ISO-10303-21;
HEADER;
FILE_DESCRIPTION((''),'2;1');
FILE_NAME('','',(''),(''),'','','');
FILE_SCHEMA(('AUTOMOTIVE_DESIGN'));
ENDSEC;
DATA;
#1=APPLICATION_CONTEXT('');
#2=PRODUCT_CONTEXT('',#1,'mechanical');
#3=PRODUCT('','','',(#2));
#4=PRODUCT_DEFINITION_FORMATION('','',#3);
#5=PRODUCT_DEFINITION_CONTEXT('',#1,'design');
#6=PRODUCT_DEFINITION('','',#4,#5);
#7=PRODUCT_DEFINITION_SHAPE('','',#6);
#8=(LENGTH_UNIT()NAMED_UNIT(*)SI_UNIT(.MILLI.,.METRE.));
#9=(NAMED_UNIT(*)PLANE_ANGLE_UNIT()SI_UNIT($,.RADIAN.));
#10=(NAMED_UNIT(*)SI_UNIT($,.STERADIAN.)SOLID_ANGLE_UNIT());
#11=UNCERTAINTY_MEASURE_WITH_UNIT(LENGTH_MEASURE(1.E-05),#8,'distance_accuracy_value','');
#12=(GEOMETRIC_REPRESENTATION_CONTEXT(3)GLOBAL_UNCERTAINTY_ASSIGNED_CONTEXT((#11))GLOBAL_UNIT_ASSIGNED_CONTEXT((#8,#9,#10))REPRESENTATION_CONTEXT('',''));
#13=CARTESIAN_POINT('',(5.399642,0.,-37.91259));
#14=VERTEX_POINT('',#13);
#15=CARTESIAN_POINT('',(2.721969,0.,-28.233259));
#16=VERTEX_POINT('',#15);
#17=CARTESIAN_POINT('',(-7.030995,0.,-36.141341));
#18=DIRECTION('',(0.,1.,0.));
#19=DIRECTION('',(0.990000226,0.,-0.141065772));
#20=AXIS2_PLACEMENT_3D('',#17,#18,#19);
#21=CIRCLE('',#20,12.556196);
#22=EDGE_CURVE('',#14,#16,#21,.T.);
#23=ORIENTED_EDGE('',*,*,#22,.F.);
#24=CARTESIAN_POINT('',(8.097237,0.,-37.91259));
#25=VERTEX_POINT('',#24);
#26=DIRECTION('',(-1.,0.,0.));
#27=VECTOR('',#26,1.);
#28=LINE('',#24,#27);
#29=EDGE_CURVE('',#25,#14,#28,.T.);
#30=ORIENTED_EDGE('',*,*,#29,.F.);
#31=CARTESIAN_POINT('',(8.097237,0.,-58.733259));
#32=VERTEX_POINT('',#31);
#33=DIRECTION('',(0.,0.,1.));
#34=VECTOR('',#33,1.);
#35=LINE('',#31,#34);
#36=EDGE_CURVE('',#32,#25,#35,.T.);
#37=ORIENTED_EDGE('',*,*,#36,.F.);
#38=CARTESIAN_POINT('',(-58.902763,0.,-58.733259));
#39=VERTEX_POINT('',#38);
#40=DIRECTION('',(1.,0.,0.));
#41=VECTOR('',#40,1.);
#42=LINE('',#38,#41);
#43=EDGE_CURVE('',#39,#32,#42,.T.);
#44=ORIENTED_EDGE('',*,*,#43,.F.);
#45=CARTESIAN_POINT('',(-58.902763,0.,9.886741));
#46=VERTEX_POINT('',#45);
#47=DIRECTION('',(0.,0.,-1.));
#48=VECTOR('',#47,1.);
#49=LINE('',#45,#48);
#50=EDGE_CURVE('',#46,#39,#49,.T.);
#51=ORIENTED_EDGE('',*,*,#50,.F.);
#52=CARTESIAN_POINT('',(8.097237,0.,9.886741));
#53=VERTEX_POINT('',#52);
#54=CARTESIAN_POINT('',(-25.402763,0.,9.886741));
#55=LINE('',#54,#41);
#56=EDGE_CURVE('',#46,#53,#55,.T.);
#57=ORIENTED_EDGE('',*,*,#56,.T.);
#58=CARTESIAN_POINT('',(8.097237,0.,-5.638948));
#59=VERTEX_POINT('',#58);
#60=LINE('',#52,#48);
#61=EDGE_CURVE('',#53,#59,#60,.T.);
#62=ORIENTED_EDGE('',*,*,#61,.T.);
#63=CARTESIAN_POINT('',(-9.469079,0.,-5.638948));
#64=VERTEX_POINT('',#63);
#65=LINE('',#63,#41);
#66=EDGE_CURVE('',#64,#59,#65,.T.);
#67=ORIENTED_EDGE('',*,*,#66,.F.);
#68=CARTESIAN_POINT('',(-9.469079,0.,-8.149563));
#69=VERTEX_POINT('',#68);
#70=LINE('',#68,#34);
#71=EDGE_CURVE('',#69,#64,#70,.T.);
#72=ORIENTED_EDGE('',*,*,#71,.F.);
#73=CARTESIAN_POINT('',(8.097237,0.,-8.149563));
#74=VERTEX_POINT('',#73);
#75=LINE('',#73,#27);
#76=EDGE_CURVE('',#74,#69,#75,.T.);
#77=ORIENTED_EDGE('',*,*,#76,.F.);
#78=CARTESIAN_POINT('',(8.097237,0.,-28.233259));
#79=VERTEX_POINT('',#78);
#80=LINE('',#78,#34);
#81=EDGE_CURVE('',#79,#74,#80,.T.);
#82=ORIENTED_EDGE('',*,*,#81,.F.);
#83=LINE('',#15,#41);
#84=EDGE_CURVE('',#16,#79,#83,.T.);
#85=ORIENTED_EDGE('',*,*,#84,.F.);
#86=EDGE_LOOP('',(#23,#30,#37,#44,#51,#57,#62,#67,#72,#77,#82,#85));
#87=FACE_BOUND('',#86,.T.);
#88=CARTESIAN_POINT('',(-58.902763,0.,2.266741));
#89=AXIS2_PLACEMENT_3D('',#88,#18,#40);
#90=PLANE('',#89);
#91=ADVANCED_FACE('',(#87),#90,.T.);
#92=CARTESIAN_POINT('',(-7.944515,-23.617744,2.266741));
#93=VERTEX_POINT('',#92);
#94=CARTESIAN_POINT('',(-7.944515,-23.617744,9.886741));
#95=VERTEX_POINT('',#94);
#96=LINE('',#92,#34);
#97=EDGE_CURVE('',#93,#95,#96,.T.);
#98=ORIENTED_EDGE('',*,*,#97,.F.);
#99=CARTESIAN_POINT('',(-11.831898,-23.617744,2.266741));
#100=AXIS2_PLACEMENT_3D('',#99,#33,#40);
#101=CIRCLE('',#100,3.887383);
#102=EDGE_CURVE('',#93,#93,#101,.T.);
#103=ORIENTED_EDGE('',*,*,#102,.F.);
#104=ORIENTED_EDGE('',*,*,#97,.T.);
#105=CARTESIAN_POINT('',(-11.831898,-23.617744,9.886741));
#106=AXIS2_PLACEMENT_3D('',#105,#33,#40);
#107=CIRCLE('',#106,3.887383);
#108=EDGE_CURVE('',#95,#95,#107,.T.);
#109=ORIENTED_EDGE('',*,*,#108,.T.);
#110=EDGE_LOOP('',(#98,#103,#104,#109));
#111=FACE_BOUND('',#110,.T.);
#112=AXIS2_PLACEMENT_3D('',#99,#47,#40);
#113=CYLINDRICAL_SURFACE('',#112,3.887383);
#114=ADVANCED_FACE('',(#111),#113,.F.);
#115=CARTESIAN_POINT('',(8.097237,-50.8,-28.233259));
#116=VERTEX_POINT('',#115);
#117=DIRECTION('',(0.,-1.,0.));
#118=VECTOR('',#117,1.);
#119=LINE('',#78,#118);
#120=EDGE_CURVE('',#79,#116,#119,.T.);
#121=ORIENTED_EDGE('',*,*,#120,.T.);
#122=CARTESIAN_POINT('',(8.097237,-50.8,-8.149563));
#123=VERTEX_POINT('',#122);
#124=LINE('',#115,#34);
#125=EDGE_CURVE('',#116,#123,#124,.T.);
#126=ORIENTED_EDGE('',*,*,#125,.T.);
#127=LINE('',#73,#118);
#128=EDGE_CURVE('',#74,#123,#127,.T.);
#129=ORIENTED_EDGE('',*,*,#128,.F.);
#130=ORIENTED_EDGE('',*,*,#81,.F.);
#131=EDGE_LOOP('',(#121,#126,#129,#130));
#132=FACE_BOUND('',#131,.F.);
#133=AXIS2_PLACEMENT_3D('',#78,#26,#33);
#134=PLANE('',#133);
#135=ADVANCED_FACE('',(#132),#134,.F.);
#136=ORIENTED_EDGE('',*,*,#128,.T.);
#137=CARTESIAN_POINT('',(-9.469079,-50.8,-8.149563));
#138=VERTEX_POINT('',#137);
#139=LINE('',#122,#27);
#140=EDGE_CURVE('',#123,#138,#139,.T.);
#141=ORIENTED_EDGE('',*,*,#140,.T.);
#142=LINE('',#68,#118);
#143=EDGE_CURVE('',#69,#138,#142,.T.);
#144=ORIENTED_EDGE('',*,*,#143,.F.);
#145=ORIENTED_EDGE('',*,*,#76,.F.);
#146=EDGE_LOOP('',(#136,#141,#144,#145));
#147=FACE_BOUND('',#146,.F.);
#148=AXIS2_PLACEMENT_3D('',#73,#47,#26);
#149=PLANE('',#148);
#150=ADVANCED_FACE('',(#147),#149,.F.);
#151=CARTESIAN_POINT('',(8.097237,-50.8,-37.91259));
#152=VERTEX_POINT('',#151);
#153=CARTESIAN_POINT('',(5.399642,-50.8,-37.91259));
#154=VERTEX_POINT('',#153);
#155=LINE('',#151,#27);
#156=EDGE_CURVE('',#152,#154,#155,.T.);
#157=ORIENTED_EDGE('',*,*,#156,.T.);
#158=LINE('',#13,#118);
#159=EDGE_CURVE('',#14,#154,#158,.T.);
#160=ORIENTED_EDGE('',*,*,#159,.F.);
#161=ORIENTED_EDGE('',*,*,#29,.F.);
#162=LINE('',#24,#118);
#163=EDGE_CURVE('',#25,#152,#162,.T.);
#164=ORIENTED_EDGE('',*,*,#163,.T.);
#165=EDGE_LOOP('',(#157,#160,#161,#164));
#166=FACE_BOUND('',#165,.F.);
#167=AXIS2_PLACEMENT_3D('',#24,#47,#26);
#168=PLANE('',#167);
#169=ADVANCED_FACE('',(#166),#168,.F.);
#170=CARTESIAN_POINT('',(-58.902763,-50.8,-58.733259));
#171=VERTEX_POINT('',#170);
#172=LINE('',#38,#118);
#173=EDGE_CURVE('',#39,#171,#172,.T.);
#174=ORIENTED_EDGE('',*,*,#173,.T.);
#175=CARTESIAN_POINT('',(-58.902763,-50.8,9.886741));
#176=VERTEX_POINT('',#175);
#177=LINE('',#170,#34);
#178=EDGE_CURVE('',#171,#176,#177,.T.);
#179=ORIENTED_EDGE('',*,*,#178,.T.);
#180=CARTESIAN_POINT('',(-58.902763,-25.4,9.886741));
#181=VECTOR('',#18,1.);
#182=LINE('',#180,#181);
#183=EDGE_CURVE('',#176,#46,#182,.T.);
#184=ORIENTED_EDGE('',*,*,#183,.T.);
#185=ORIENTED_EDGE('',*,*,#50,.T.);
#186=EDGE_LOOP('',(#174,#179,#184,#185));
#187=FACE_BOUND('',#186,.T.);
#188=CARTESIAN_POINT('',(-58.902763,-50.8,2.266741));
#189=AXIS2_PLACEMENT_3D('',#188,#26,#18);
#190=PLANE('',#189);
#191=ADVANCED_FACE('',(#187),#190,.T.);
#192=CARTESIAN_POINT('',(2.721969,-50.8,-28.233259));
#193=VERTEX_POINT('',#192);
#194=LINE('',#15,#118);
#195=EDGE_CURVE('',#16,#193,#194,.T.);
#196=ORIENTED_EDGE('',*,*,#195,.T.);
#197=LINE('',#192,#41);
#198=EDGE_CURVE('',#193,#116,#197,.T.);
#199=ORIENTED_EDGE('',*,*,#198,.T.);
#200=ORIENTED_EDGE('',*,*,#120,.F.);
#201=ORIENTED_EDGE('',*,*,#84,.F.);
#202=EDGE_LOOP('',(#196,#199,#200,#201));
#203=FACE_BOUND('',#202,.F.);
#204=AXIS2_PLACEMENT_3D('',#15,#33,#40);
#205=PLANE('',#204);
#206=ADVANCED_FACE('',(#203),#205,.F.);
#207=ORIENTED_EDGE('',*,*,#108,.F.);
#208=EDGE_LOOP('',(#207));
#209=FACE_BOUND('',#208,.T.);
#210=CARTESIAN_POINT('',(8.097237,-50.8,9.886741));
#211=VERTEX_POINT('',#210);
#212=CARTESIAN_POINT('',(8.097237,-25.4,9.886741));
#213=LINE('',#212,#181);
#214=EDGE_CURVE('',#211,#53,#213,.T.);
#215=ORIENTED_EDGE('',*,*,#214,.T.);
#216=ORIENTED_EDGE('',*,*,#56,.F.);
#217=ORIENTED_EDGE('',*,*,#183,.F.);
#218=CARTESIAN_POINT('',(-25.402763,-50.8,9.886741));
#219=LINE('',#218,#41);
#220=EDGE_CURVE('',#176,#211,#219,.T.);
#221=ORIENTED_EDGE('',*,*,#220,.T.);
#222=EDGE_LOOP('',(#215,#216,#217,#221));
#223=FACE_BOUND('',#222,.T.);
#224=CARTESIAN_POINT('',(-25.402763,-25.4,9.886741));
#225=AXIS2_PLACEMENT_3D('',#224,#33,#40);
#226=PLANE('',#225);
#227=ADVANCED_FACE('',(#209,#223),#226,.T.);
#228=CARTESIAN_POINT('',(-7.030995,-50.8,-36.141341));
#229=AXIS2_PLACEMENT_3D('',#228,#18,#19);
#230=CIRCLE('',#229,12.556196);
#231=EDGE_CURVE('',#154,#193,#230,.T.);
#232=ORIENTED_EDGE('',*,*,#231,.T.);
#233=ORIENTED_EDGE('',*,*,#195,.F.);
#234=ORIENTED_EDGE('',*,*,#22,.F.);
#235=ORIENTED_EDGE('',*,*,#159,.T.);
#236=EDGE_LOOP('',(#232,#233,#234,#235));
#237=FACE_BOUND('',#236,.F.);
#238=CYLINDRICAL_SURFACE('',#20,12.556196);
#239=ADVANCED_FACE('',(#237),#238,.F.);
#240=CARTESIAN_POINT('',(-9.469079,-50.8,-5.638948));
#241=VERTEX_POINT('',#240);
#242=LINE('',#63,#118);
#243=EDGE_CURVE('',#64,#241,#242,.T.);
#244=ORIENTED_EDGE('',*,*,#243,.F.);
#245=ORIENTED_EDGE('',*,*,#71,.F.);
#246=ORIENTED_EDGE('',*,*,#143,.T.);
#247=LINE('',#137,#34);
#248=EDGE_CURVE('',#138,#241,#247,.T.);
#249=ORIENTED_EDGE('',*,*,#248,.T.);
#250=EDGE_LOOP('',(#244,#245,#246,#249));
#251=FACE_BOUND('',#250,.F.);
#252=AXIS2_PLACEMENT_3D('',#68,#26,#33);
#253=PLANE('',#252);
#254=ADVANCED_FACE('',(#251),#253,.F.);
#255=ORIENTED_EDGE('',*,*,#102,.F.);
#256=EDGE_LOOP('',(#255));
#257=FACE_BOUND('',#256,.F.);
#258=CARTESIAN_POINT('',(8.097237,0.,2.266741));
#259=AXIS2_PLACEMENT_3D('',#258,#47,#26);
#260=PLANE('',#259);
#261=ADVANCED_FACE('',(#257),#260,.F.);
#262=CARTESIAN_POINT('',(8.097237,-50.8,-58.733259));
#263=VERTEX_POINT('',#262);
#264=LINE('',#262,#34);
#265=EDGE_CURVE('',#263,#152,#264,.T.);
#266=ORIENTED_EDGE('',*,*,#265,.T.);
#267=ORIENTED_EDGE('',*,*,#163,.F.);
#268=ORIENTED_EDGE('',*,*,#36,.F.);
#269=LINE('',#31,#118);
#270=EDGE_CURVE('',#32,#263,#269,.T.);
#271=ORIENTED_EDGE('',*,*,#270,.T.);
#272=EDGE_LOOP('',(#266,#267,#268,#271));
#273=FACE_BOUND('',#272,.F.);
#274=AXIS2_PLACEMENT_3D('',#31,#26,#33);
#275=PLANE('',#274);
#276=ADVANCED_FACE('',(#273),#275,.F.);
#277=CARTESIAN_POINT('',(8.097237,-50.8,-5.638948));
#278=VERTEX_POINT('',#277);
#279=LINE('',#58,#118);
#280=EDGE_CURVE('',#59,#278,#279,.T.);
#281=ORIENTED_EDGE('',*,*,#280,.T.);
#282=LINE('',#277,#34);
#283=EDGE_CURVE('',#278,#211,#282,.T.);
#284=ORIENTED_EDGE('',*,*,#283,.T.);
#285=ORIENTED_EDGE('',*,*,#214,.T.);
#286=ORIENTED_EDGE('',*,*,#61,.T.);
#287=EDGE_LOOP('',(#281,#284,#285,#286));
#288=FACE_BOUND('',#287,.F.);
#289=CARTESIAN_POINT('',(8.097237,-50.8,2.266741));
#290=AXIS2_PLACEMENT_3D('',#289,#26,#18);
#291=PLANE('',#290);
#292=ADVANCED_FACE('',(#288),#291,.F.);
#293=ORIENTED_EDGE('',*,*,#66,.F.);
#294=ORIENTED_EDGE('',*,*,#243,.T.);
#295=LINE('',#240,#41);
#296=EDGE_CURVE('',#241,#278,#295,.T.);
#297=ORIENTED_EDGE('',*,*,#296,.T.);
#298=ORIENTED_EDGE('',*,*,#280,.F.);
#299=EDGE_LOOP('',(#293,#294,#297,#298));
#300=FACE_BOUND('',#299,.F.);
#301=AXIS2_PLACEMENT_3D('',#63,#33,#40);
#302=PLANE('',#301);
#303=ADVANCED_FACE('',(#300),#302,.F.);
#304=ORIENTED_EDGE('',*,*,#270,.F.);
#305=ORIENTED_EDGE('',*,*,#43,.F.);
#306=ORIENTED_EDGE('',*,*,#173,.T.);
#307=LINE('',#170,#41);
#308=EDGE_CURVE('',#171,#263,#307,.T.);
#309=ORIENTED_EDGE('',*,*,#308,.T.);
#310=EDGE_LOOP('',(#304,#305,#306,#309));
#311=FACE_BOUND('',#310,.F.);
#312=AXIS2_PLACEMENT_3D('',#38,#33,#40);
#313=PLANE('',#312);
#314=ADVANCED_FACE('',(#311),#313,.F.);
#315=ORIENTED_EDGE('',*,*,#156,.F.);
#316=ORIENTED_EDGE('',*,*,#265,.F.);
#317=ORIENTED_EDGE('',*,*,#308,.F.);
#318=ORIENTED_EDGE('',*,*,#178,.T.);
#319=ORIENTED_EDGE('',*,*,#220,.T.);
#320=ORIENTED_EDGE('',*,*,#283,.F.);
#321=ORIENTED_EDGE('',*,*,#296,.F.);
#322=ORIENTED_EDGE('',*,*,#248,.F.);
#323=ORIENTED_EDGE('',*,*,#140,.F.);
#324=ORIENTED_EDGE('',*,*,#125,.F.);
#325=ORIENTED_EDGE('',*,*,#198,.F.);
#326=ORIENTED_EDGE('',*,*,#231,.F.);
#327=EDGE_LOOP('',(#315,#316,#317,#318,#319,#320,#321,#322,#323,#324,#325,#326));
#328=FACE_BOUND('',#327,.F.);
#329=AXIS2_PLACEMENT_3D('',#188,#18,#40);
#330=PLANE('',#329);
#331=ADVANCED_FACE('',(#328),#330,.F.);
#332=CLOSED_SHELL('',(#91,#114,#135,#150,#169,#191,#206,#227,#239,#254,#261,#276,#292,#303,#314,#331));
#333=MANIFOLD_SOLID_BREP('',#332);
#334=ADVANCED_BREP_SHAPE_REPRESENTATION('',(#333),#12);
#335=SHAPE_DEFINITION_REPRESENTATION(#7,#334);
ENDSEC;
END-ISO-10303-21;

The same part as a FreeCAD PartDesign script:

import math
import FreeCAD as App
import Part
import Sketcher

V = App.Vector
Q = App.Units.Quantity

doc = App.newDocument("Part")
params = doc.addObject("Spreadsheet::Sheet", "Params")
for row, (alias, value) in enumerate([
    ("sketch1_width", "67 mm"),
    ("sketch1_height", "61 mm"),
    ("pad1_length", "50.8 mm"),
    ("sketch2_width", "67 mm"),
    ("sketch2_height", "50.8 mm"),
    ("pad2_length", "7.62 mm"),
], start=1):
    params.set(f"A{row}", alias)
    params.set(f"B{row}", "=" + value)
    params.setAlias(f"B{row}", alias)

body = doc.addObject("PartDesign::Body", "Body")

sketch1 = body.newObject("Sketcher::SketchObject", "Sketch")
sketch1.AttachmentSupport = (doc.getObject("XZ_Plane"), [""])
sketch1.MapMode = "FlatFace"
sketch1.addGeometry(Part.LineSegment(V(8.097237, 2.266741, 0), V(-58.902763, 2.266741, 0)), False)
sketch1.addGeometry(Part.LineSegment(V(-58.902763, 2.266741, 0), V(-58.902763, -58.733259, 0)), False)
sketch1.addGeometry(Part.LineSegment(V(-58.902763, -58.733259, 0), V(8.097237, -58.733259, 0)), False)
sketch1.addGeometry(Part.LineSegment(V(8.097237, -58.733259, 0), V(8.097237, -37.91259, 0)), False)
sketch1.addGeometry(Part.LineSegment(V(8.097237, -37.91259, 0), V(5.399642, -37.91259, 0)), False)
sketch1.addGeometry(Part.ArcOfCircle(Part.Circle(V(-7.030995, -36.141341, 0), V(0, 0, 1), 12.556196), math.radians(39.036481), math.radians(351.890477)), False)
sketch1.addGeometry(Part.LineSegment(V(2.721969, -28.233259, 0), V(8.097237, -28.233259, 0)), False)
sketch1.addGeometry(Part.LineSegment(V(8.097237, -28.233259, 0), V(8.097237, -8.149563, 0)), False)
sketch1.addGeometry(Part.LineSegment(V(8.097237, -8.149563, 0), V(-9.469079, -8.149563, 0)), False)
sketch1.addGeometry(Part.LineSegment(V(-9.469079, -8.149563, 0), V(-9.469079, -5.638948, 0)), False)
sketch1.addGeometry(Part.LineSegment(V(-9.469079, -5.638948, 0), V(8.097237, -5.638948, 0)), False)
sketch1.addGeometry(Part.LineSegment(V(8.097237, -5.638948, 0), V(8.097237, 2.266741, 0)), False)
sketch1.addConstraint(Sketcher.Constraint("Coincident", 0, 2, 1, 1))
sketch1.addConstraint(Sketcher.Constraint("Coincident", 1, 2, 2, 1))
sketch1.addConstraint(Sketcher.Constraint("Coincident", 2, 2, 3, 1))
sketch1.addConstraint(Sketcher.Constraint("Coincident", 3, 2, 4, 1))
sketch1.addConstraint(Sketcher.Constraint("Coincident", 4, 2, 5, 2))
sketch1.addConstraint(Sketcher.Constraint("Coincident", 5, 1, 6, 1))
sketch1.addConstraint(Sketcher.Constraint("Coincident", 6, 2, 7, 1))
sketch1.addConstraint(Sketcher.Constraint("Coincident", 7, 2, 8, 1))
sketch1.addConstraint(Sketcher.Constraint("Coincident", 8, 2, 9, 1))
sketch1.addConstraint(Sketcher.Constraint("Coincident", 9, 2, 10, 1))
sketch1.addConstraint(Sketcher.Constraint("Coincident", 10, 2, 11, 1))
sketch1.addConstraint(Sketcher.Constraint("Coincident", 11, 2, 0, 1))
sketch1.addConstraint(Sketcher.Constraint("Horizontal", 0))
sketch1.addConstraint(Sketcher.Constraint("Vertical", 1))
sketch1.addConstraint(Sketcher.Constraint("Horizontal", 2))
sketch1.addConstraint(Sketcher.Constraint("Vertical", 3))
sketch1.addConstraint(Sketcher.Constraint("Horizontal", 4))
sketch1.addConstraint(Sketcher.Constraint("Horizontal", 6))
sketch1.addConstraint(Sketcher.Constraint("Vertical", 7))
sketch1.addConstraint(Sketcher.Constraint("Horizontal", 8))
sketch1.addConstraint(Sketcher.Constraint("Vertical", 9))
sketch1.addConstraint(Sketcher.Constraint("Horizontal", 10))
sketch1.addConstraint(Sketcher.Constraint("Vertical", 11))
sketch1.addConstraint(Sketcher.Constraint("Vertical", 3, 2, 6, 2))
sketch1.addConstraint(Sketcher.Constraint("Vertical", 7, 2, 10, 2))
sketch1.addConstraint(Sketcher.Constraint("DistanceX", 0, 2, 0, 1, Q("67 mm")))
sketch1.addConstraint(Sketcher.Constraint("DistanceY", 1, 2, 1, 1, Q("61 mm")))
sketch1.addConstraint(Sketcher.Constraint("DistanceY", 2, 2, 5, 1, Q("30.5 mm")))
sketch1.addConstraint(Sketcher.Constraint("Radius", 5, Q("12.556196 mm")))
sketch1.addConstraint(Sketcher.Constraint("DistanceY", 3, 1, 3, 2, Q("20.820669 mm")))
sketch1.addConstraint(Sketcher.Constraint("DistanceY", 11, 1, 11, 2, Q("7.905689 mm")))
sketch1.addConstraint(Sketcher.Constraint("DistanceX", 4, 2, 4, 1, Q("2.697595 mm")))
sketch1.addConstraint(Sketcher.Constraint("DistanceX", 6, 1, 6, 2, Q("5.375268 mm")))
sketch1.addConstraint(Sketcher.Constraint("DistanceX", 8, 2, 8, 1, Q("17.566316 mm")))
sketch1.addConstraint(Sketcher.Constraint("DistanceY", 7, 1, 7, 2, Q("20.083696 mm")))
sketch1.addConstraint(Sketcher.Constraint("DistanceY", 5, 3, -1, 1, Q("36.141341 mm")))
sketch1.addConstraint(Sketcher.Constraint("DistanceX", -1, 1, 5, 1, Q("2.721969 mm")))
sketch1.setExpression("Constraints[25]", "Params.sketch1_width")
sketch1.setExpression("Constraints[26]", "Params.sketch1_height")
pad1 = body.newObject("PartDesign::Pad", "Pad")
pad1.Profile = sketch1
pad1.setExpression("Length", "Params.pad1_length")

sketch2 = body.newObject("Sketcher::SketchObject", "Sketch001")
sketch2.AttachmentSupport = (doc.getObject("XY_Plane"), [""])
sketch2.MapMode = "FlatFace"
sketch2.AttachmentOffset = App.Placement(V(0, 0, 2.266741), App.Rotation())
sketch2.addGeometry(Part.LineSegment(V(-58.902763, 0, 0), V(-58.902763, -50.8, 0)), False)
sketch2.addGeometry(Part.LineSegment(V(-58.902763, -50.8, 0), V(8.097237, -50.8, 0)), False)
sketch2.addGeometry(Part.LineSegment(V(8.097237, -50.8, 0), V(8.097237, 0, 0)), False)
sketch2.addGeometry(Part.LineSegment(V(8.097237, 0, 0), V(-58.902763, 0, 0)), False)
sketch2.addGeometry(Part.Circle(V(-11.831898, -23.617744, 0), V(0, 0, 1), 3.887383), False)
sketch2.addConstraint(Sketcher.Constraint("Coincident", 0, 2, 1, 1))
sketch2.addConstraint(Sketcher.Constraint("Coincident", 1, 2, 2, 1))
sketch2.addConstraint(Sketcher.Constraint("Coincident", 2, 2, 3, 1))
sketch2.addConstraint(Sketcher.Constraint("Coincident", 3, 2, 0, 1))
sketch2.addConstraint(Sketcher.Constraint("Vertical", 0))
sketch2.addConstraint(Sketcher.Constraint("Horizontal", 1))
sketch2.addConstraint(Sketcher.Constraint("Vertical", 2))
sketch2.addConstraint(Sketcher.Constraint("Horizontal", 3))
sketch2.addConstraint(Sketcher.Constraint("PointOnObject", 2, 2, -1))
sketch2.addConstraint(Sketcher.Constraint("DistanceX", 1, 1, 1, 2, Q("67 mm")))
sketch2.addConstraint(Sketcher.Constraint("DistanceY", 0, 2, 0, 1, Q("50.8 mm")))
sketch2.addConstraint(Sketcher.Constraint("Diameter", 4, Q("7.774766 mm")))
sketch2.addConstraint(Sketcher.Constraint("DistanceX", 4, 3, -1, 1, Q("11.831898 mm")))
sketch2.addConstraint(Sketcher.Constraint("DistanceY", 4, 3, -1, 1, Q("23.617744 mm")))
sketch2.addConstraint(Sketcher.Constraint("DistanceX", 0, 2, -1, 1, Q("58.902763 mm")))
sketch2.setExpression("Constraints[9]", "Params.sketch2_width")
sketch2.setExpression("Constraints[10]", "Params.sketch2_height")
pad2 = body.newObject("PartDesign::Pad", "Pad001")
pad2.Profile = sketch2
pad2.setExpression("Length", "Params.pad2_length")

doc.recompute()
